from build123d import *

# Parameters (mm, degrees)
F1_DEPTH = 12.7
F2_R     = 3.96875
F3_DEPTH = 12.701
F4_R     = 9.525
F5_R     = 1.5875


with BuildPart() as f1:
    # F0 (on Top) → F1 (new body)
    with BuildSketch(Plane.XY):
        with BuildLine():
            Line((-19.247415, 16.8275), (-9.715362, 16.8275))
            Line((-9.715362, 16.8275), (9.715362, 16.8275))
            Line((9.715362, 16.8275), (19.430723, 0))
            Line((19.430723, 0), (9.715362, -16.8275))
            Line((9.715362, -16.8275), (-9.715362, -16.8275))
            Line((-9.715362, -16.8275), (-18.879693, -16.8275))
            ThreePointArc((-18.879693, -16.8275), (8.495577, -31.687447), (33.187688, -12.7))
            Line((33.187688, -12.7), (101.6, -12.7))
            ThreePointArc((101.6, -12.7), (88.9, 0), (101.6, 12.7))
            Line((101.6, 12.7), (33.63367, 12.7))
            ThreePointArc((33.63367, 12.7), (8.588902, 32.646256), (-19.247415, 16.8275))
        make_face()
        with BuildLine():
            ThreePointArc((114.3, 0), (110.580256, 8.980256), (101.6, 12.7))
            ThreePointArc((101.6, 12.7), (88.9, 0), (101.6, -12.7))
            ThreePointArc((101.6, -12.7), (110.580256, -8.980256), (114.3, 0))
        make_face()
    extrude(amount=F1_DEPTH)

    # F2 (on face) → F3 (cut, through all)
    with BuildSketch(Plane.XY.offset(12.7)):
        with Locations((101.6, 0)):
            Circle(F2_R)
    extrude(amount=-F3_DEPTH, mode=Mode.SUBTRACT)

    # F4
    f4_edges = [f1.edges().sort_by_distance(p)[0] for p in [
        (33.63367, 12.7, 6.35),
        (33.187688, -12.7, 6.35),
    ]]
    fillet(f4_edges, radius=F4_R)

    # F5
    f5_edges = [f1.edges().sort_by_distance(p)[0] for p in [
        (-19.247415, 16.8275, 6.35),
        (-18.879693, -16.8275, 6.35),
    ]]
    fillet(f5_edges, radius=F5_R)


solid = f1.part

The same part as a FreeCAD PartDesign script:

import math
import FreeCAD as App
import Part
import Sketcher
Q = App.Units.Quantity


def edges_at(feature, points):
    """Names of the edges that pass closest to the given points."""
    edges = feature.Shape.Edges
    near = lambda p: min(range(len(edges)), key=lambda i: edges[i].distToShape(Part.Vertex(*p))[0])
    return sorted({f"Edge{near(p) + 1}" for p in points})

doc = App.newDocument("Part")
body = doc.addObject("PartDesign::Body", "Body")

# Sketch on XY plane
sketch1 = doc.addObject("Sketcher::SketchObject", "Sketch")
body.addObject(sketch1)
sketch1.AttachmentSupport = (doc.XY_Plane, [""])
sketch1.MapMode = "FlatFace"
sketch1.addGeometry([
    Part.ArcOfCircle(Part.Circle(App.Vector(6, 4, 0), App.Vector(0, 0, 1), 29), math.radians(17), math.radians(154)),  # 0
    Part.LineSegment(App.Vector(-19, 17, 0), App.Vector(10, 17, 0)),  # 1
    Part.LineSegment(App.Vector(10, 17, 0), App.Vector(19, 0, 0)),  # 2
    Part.LineSegment(App.Vector(19, 0, 0), App.Vector(10, -17, 0)),  # 3
    Part.LineSegment(App.Vector(10, -17, 0), App.Vector(-19, -17, 0)),  # 4
    Part.ArcOfCircle(Part.Circle(App.Vector(6, -3, 0), App.Vector(0, 0, 1), 29), math.radians(-152), math.radians(-19)),  # 5
    Part.LineSegment(App.Vector(33, -13, 0), App.Vector(102, -13, 0)),  # 6
    Part.ArcOfCircle(Part.Circle(App.Vector(102, 0, 0), App.Vector(0, 0, 1), 13), math.radians(-90), math.radians(0)),  # 7
    Part.ArcOfCircle(Part.Circle(App.Vector(102, 0, 0), App.Vector(0, 0, 1), 13), math.radians(0), math.radians(90)),  # 8
    Part.LineSegment(App.Vector(102, 13, 0), App.Vector(34, 13, 0)),  # 9
], False)
sketch1.addConstraint([
    Sketcher.Constraint("Coincident", 0, 2, 1, 1),
    Sketcher.Constraint("Coincident", 1, 2, 2, 1),
    Sketcher.Constraint("Coincident", 2, 2, 3, 1),
    Sketcher.Constraint("Coincident", 3, 2, 4, 1),
    Sketcher.Constraint("Coincident", 4, 2, 5, 1),
    Sketcher.Constraint("Coincident", 5, 2, 6, 1),
    Sketcher.Constraint("Tangent", 6, 2, 7, 1),
    Sketcher.Constraint("Tangent", 7, 2, 8, 1),
    Sketcher.Constraint("Tangent", 8, 2, 9, 1),
    Sketcher.Constraint("Coincident", 9, 2, 0, 1),
    Sketcher.Constraint("Horizontal", 1),
    Sketcher.Constraint("Horizontal", 4),
    Sketcher.Constraint("Horizontal", 6),
    Sketcher.Constraint("Horizontal", 9),
    Sketcher.Constraint("Equal", 0, 5),
    Sketcher.Constraint("Equal", 7, 8),
    Sketcher.Constraint("Symmetric", 1, 2, 3, 2, -1),
    Sketcher.Constraint("PointOnObject", 7, 3, -1),
    Sketcher.Constraint("PointOnObject", 2, 2, -1),
    Sketcher.Constraint("PointOnObject", 7, 2, -1),
    Sketcher.Constraint("Radius", 7, Q("0.5 in")),
    Sketcher.Constraint("DistanceX", -1, 1, 7, 3, Q("4 in")),
    Sketcher.Constraint("Angle", 2, Q("-60.000002 deg")),
    Sketcher.Constraint("Radius", 0, Q("1.125 in")),
    Sketcher.Constraint("DistanceY", 3, 2, 1, 2, Q("1.325 in")),
    Sketcher.Constraint("DistanceX", 6, 1, 6, 2, 68.412312),
    Sketcher.Constraint("DistanceX", 9, 2, 9, 1, 67.96633),
    Sketcher.Constraint("DistanceX", 1, 1, 1, 2, 28.962777),
    Sketcher.Constraint("DistanceX", 4, 2, 4, 1, 28.595055),
    Sketcher.Constraint("DistanceY", 5, 3, -1, 1, 3.20181),
])
pad1 = doc.addObject("PartDesign::Pad", "Pad")
body.addObject(pad1)
pad1.Profile = sketch1
pad1.Length = Q("0.5 in")

# Sketch on XY plane
sketch2 = doc.addObject("Sketcher::SketchObject", "Sketch001")
body.addObject(sketch2)
sketch2.AttachmentSupport = (doc.XY_Plane, [""])
sketch2.MapMode = "FlatFace"
sketch2.AttachmentOffset = App.Placement(App.Vector(0, 0, 0.5 * 25.4), App.Rotation())
sketch2.addGeometry(Part.Circle(App.Vector(101.6, 0, 0), App.Vector(0, 0, 1), 4), False)
sketch2.addConstraint([
    Sketcher.Constraint("PointOnObject", 0, 3, -1),
    Sketcher.Constraint("Diameter", 0, Q("0.3125 in")),
    Sketcher.Constraint("DistanceX", -1, 1, 0, 3, Q("4 in")),
])
pocket1 = doc.addObject("PartDesign::Pocket", "Pocket")
body.addObject(pocket1)
pocket1.Profile = sketch2
pocket1.Type = "ThroughAll"
doc.recompute()

fillet = doc.addObject("PartDesign::Fillet", "Fillet")
body.addObject(fillet)
fillet.Base = (pocket1, edges_at(pocket1, [(33.634, 12.7, 6.35), (33.188, -12.7, 6.35)]))
fillet.Radius = Q("0.375 in")
doc.recompute()

fillet2 = doc.addObject("PartDesign::Fillet", "Fillet001")
body.addObject(fillet2)
fillet2.Base = (fillet, edges_at(fillet, [(-19.247, 16.828, 6.35), (-18.88, -16.828, 6.35)]))
fillet2.Radius = Q("0.0625 in")

doc.recompute()
